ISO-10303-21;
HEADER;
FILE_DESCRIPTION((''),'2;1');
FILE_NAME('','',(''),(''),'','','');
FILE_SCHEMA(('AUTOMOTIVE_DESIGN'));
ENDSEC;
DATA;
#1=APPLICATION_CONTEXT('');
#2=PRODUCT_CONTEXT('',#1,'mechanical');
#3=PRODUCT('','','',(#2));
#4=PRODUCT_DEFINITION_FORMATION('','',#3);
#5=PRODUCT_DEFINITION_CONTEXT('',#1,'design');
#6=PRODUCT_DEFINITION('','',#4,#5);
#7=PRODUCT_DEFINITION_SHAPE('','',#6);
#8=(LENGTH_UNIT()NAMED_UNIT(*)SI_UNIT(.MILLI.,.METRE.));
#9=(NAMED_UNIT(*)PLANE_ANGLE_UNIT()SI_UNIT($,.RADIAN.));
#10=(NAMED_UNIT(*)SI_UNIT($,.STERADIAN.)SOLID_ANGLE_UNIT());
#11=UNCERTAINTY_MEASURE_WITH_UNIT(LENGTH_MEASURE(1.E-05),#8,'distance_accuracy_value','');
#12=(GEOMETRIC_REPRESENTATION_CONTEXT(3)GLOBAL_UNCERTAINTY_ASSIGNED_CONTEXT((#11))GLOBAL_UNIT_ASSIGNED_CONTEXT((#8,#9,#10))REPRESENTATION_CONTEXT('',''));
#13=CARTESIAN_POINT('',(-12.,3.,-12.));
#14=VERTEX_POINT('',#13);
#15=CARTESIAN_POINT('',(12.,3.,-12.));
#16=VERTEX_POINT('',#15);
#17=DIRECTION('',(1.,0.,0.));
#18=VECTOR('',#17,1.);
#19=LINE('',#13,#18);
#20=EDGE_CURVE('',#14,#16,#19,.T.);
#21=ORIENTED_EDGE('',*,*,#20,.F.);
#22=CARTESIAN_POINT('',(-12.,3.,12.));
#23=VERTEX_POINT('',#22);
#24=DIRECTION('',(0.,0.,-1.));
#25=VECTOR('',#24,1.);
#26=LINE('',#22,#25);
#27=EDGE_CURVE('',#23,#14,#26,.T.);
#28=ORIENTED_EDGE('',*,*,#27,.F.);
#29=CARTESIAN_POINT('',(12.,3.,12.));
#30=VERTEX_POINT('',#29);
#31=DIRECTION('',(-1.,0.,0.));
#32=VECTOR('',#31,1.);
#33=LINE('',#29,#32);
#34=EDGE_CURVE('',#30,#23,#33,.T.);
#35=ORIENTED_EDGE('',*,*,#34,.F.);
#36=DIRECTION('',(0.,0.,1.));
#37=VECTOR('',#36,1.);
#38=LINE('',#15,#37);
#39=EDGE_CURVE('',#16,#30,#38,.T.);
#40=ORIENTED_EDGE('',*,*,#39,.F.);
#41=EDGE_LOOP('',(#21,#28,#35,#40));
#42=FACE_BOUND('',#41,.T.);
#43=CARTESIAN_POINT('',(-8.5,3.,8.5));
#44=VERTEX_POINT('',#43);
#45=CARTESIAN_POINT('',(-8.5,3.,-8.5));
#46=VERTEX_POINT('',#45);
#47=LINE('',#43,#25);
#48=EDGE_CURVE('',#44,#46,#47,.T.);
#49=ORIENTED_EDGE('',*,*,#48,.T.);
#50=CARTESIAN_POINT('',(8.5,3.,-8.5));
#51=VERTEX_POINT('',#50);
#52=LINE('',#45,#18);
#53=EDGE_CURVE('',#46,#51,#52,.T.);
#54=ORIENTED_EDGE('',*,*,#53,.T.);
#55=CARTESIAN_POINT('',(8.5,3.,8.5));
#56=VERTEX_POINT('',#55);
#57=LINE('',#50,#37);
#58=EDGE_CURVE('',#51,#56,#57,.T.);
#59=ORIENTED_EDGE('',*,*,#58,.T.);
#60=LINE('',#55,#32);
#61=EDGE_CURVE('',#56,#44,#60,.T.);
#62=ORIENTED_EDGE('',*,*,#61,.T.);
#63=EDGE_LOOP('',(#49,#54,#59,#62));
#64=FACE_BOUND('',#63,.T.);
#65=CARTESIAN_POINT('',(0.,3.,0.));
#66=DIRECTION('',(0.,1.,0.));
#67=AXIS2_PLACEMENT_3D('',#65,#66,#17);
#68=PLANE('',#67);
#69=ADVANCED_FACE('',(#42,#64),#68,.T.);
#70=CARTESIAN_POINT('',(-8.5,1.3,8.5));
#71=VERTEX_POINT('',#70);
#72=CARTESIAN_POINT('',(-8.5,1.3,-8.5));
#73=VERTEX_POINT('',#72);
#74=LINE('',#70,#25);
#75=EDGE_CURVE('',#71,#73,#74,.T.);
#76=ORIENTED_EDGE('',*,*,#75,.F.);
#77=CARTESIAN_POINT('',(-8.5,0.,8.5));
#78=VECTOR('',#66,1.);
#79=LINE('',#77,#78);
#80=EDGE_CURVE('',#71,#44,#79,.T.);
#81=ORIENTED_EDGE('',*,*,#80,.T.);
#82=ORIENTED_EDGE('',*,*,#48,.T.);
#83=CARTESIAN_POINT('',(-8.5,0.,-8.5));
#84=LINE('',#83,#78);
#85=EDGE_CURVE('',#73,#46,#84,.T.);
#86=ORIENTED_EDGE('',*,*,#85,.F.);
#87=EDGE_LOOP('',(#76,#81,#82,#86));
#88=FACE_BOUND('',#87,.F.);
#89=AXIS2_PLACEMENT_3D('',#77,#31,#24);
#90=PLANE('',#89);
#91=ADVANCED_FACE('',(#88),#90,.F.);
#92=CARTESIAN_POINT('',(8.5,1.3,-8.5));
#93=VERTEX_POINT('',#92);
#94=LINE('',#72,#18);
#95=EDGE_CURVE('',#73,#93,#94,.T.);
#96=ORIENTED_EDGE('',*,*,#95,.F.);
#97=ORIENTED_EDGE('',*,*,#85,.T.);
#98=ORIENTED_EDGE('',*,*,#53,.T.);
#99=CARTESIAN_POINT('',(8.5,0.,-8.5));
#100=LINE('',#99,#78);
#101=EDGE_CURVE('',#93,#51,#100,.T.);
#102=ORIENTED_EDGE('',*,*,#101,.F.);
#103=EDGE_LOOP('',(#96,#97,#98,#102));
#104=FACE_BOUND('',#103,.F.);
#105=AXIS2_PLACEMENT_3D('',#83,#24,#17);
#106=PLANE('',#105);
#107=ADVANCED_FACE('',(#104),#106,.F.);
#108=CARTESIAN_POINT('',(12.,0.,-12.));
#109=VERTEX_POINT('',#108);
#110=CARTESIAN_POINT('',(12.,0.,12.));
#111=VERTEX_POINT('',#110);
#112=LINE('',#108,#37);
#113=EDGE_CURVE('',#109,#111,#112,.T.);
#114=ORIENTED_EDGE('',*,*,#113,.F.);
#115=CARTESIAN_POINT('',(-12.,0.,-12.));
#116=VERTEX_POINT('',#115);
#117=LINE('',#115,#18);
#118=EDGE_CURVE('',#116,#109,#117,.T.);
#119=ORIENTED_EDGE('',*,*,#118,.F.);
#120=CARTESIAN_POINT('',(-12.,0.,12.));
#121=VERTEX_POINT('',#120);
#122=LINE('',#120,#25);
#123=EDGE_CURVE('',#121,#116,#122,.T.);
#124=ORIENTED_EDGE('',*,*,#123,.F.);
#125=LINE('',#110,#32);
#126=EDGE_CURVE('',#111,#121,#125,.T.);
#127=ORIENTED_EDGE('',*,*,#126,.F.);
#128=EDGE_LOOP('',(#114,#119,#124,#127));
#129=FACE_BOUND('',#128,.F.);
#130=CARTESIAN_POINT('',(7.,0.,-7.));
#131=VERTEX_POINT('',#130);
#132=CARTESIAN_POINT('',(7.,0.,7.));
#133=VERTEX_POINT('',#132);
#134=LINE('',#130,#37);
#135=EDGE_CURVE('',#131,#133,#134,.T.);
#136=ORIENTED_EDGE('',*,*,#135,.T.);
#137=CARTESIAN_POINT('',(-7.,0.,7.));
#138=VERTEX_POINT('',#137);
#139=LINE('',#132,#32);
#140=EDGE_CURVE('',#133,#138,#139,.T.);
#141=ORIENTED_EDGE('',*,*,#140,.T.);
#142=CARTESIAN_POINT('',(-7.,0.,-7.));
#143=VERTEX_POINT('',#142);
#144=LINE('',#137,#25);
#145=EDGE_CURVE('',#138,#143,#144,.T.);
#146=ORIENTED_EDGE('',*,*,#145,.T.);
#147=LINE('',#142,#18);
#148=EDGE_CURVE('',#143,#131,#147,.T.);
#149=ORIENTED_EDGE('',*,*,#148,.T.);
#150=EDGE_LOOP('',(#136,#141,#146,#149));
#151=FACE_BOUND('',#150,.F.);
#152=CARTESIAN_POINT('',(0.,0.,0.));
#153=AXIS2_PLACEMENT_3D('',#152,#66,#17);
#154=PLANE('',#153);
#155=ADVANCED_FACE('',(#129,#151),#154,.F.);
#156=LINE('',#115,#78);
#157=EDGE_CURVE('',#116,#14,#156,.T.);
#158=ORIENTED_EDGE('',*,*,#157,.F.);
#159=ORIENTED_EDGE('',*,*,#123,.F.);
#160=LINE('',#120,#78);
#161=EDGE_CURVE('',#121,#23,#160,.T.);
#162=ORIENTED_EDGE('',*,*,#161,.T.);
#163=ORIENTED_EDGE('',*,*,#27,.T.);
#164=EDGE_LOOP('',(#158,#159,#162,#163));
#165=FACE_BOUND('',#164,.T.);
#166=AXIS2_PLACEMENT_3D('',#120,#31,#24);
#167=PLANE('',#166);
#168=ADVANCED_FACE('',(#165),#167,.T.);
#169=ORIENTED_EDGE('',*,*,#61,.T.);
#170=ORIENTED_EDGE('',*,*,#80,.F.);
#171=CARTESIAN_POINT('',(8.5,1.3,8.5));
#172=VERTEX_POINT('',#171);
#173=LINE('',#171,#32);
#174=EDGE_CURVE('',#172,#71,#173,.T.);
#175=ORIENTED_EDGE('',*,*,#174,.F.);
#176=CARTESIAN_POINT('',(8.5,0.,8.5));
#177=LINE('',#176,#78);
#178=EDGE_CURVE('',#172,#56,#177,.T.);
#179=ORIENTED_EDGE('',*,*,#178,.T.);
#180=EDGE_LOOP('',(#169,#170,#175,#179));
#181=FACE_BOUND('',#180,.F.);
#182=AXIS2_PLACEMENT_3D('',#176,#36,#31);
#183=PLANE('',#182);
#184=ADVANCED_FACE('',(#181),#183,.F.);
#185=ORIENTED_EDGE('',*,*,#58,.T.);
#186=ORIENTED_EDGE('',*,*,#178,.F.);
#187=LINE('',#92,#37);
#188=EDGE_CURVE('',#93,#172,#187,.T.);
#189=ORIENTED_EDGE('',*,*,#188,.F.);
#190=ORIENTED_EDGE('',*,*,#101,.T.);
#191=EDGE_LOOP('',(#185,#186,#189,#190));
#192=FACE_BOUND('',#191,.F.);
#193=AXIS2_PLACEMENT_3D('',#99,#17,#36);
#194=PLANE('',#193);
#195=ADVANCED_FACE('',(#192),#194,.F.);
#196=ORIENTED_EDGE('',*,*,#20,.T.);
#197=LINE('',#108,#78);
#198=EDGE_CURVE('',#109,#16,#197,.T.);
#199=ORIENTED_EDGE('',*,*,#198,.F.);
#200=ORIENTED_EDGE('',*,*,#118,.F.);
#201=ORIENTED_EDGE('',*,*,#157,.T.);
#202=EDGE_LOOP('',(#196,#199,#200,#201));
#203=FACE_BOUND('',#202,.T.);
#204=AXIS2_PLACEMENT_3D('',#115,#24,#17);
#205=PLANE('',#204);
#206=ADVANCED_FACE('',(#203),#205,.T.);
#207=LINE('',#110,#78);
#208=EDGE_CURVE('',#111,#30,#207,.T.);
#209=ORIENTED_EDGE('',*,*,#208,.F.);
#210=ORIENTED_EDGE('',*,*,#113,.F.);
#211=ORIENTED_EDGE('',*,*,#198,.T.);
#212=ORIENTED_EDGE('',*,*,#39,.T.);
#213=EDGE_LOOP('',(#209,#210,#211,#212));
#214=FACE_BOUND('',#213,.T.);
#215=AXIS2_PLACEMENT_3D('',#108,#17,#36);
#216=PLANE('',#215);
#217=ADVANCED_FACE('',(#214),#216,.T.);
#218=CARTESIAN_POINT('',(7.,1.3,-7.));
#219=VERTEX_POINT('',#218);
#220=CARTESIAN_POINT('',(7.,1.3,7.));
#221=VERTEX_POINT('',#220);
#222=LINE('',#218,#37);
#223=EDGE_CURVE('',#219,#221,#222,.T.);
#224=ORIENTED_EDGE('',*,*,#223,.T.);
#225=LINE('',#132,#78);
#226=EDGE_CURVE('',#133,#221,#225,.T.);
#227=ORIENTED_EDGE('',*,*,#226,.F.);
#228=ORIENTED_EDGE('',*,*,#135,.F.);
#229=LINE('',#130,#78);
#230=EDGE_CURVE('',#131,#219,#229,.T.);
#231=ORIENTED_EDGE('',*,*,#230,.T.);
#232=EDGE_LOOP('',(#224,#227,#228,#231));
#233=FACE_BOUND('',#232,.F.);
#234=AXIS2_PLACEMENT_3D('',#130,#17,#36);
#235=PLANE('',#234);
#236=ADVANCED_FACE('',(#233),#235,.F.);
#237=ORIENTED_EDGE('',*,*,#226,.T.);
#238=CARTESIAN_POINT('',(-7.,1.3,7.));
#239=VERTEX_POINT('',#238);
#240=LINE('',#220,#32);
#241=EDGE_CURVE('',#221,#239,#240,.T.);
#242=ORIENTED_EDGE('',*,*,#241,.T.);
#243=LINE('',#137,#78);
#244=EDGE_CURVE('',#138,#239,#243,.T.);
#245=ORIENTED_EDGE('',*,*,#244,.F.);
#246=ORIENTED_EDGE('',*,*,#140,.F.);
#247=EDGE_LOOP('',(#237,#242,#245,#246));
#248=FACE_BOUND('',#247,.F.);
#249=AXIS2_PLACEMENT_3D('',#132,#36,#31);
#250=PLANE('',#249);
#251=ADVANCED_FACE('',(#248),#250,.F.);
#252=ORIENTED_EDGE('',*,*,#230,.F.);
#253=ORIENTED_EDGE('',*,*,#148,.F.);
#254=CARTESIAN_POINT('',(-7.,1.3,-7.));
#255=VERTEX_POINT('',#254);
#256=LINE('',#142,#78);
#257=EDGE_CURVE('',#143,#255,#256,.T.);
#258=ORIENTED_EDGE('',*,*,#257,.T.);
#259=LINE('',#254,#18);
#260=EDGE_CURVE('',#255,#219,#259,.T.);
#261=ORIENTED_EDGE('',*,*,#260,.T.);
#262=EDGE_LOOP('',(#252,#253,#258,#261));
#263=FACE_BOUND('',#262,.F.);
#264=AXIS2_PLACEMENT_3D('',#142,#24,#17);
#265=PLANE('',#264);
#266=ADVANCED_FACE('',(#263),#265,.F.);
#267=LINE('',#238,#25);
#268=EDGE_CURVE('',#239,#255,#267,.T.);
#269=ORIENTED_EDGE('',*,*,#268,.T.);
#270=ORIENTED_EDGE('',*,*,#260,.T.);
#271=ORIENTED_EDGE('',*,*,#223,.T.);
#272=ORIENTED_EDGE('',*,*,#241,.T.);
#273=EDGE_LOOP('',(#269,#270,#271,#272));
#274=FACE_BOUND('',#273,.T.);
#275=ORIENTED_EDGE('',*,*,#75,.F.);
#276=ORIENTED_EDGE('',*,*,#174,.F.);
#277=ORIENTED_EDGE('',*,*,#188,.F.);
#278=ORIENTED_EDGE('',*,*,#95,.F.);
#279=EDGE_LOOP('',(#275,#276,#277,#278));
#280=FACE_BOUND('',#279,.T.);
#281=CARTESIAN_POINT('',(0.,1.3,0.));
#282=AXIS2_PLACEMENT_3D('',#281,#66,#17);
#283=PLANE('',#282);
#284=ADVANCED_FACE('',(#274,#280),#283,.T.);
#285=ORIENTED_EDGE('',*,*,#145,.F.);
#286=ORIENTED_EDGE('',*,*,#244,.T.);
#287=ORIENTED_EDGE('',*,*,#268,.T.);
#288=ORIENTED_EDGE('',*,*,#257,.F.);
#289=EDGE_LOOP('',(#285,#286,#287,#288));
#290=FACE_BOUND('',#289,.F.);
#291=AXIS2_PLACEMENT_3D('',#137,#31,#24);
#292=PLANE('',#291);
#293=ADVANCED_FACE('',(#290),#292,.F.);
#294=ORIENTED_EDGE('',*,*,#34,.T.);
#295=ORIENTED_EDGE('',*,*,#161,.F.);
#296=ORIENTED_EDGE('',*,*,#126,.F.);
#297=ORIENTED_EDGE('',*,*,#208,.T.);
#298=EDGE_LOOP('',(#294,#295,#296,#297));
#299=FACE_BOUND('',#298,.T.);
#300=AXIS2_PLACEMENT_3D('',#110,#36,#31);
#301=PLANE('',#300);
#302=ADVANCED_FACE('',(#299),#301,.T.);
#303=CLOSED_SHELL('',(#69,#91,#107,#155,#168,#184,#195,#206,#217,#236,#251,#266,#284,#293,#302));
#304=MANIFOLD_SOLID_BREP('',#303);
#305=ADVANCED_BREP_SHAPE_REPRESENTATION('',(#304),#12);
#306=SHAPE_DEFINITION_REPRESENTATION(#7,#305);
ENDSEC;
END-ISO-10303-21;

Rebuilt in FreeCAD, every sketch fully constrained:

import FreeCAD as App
import Part
import Sketcher
Q = App.Units.Quantity


def add_polygon(sketch, points):
    """Adds a closed chain of lines whose ends are joined by coincident constraints."""
    first, n = sketch.GeometryCount, len(points)
    for a, b in zip(points, points[1:] + points[:1]):
        sketch.addGeometry(Part.LineSegment(App.Vector(*a, 0), App.Vector(*b, 0)), False)
    for i in range(n):
        sketch.addConstraint(Sketcher.Constraint("Coincident", first + i, 2, first + (i + 1) % n, 1))

doc = App.newDocument("Part")
body = doc.addObject("PartDesign::Body", "Body")

sketch1 = doc.addObject("Sketcher::SketchObject", "Sketch")
body.addObject(sketch1)
sketch1.AttachmentSupport = (doc.XZ_Plane, [""])
sketch1.MapMode = "FlatFace"
add_polygon(sketch1, [(12, -12), (-12, -12), (-12, 12), (12, 12)])
add_polygon(sketch1, [(8, 8), (-8, 8), (-8, -8), (8, -8)])
sketch1.addConstraint(Sketcher.Constraint("Horizontal", 0))
sketch1.addConstraint(Sketcher.Constraint("Vertical", 1))
sketch1.addConstraint(Sketcher.Constraint("Horizontal", 2))
sketch1.addConstraint(Sketcher.Constraint("Vertical", 3))
sketch1.addConstraint(Sketcher.Constraint("Horizontal", 4))
sketch1.addConstraint(Sketcher.Constraint("Vertical", 5))
sketch1.addConstraint(Sketcher.Constraint("Horizontal", 6))
sketch1.addConstraint(Sketcher.Constraint("Vertical", 7))
sketch1.addConstraint(Sketcher.Constraint("Symmetric", 0, 2, 2, 2, -1, 1))
sketch1.addConstraint(Sketcher.Constraint("Symmetric", 4, 2, 6, 2, -1, 1))
sketch1.addConstraint(Sketcher.Constraint("Equal", 2, 1))
sketch1.addConstraint(Sketcher.Constraint("Equal", 6, 5))
sketch1.addConstraint(Sketcher.Constraint("DistanceX", 0, 2, 0, 1, Q("24 mm")))
sketch1.addConstraint(Sketcher.Constraint("DistanceX", 4, 2, 4, 1, Q("17 mm")))
pad1 = doc.addObject("PartDesign::Pad", "Pad")
body.addObject(pad1)
pad1.Profile = sketch1
pad1.Length = 3
pad1.Reversed = True

sketch2 = doc.addObject("Sketcher::SketchObject", "Sketch001")
body.addObject(sketch2)
sketch2.AttachmentSupport = (doc.XZ_Plane, [""])
sketch2.MapMode = "FlatFace"
add_polygon(sketch2, [(-8, -8), (-8, 8), (8, 8), (8, -8)])
add_polygon(sketch2, [(-7, 7), (-7, -7), (7, -7), (7, 7)])
sketch2.addConstraint(Sketcher.Constraint("Vertical", 0))
sketch2.addConstraint(Sketcher.Constraint("Horizontal", 1))
sketch2.addConstraint(Sketcher.Constraint("Vertical", 2))
sketch2.addConstraint(Sketcher.Constraint("Horizontal", 3))
sketch2.addConstraint(Sketcher.Constraint("Vertical", 4))
sketch2.addConstraint(Sketcher.Constraint("Horizontal", 5))
sketch2.addConstraint(Sketcher.Constraint("Vertical", 6))
sketch2.addConstraint(Sketcher.Constraint("Horizontal", 7))
sketch2.addConstraint(Sketcher.Constraint("Symmetric", 0, 2, 2, 2, -1, 1))
sketch2.addConstraint(Sketcher.Constraint("Symmetric", 4, 2, 6, 2, -1, 1))
sketch2.addConstraint(Sketcher.Constraint("Equal", 3, 0))
sketch2.addConstraint(Sketcher.Constraint("Equal", 7, 4))
sketch2.addConstraint(Sketcher.Constraint("DistanceX", 5, 1, 5, 2, Q("14 mm")))
sketch2.addConstraint(Sketcher.Constraint("DistanceX", 3, 2, 4, 2, Q("1.5 mm")))
pad2 = doc.addObject("PartDesign::Pad", "Pad001")
body.addObject(pad2)
pad2.Profile = sketch2
pad2.Length = 1.3
pad2.Reversed = True

doc.recompute()
